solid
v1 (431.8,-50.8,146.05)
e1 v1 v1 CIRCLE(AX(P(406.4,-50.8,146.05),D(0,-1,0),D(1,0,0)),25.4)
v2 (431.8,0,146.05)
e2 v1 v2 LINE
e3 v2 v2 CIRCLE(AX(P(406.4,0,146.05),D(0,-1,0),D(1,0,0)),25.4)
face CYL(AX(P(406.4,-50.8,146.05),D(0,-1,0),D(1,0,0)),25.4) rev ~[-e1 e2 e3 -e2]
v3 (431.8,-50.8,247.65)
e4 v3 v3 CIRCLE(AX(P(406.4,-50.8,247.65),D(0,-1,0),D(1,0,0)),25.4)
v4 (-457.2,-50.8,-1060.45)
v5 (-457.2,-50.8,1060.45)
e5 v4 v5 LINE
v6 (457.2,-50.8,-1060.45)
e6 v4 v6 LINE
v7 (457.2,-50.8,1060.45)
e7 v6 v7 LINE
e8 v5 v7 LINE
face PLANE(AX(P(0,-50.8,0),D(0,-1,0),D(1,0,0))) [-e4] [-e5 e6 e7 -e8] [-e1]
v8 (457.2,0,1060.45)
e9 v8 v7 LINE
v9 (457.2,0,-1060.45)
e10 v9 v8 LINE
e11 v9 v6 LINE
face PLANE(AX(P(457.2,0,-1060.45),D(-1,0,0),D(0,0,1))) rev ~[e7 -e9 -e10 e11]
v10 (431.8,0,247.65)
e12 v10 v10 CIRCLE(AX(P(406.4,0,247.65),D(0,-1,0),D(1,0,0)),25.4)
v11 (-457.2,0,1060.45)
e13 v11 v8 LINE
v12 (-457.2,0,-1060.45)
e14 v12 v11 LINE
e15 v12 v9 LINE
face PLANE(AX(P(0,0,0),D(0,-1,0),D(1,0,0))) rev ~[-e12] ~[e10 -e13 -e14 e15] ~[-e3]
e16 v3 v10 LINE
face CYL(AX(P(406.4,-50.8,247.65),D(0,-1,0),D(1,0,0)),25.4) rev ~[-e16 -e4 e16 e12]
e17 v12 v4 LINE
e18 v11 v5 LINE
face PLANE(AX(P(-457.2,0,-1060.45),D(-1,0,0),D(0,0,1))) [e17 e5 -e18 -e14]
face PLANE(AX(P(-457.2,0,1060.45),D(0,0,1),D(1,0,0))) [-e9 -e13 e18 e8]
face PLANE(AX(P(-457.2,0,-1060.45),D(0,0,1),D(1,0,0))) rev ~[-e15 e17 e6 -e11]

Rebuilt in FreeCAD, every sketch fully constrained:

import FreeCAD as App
import Part
import Sketcher
from FreeCAD import Vector
Q = App.Units.Quantity


def add_polygon(sketch, points):
    """Adds a closed chain of lines whose ends are joined by coincident constraints."""
    first, n = sketch.GeometryCount, len(points)
    for a, b in zip(points, points[1:] + points[:1]):
        sketch.addGeometry(Part.LineSegment(App.Vector(*a, 0), App.Vector(*b, 0)), False)
    for i in range(n):
        sketch.addConstraint(Sketcher.Constraint("Coincident", first + i, 2, first + (i + 1) % n, 1))

doc = App.newDocument("Part")
body = doc.addObject("PartDesign::Body", "Body")

# Sketch on XZ plane
sketch1 = body.newObject("Sketcher::SketchObject", "Sketch")
sketch1.AttachmentSupport = (doc.getObject("XZ_Plane"), [""])
sketch1.MapMode = "FlatFace"
add_polygon(sketch1, [(-457, 1060), (-457, -1060), (457, -1060), (457, 1060)])  # lines 0-3
sketch1.addConstraint(Sketcher.Constraint("Vertical", 0))
sketch1.addConstraint(Sketcher.Constraint("Horizontal", 1))
sketch1.addConstraint(Sketcher.Constraint("Vertical", 2))
sketch1.addConstraint(Sketcher.Constraint("Horizontal", 3))
sketch1.addConstraint(Sketcher.Constraint("Symmetric", 0, 2, 2, 2, -1, 1))
sketch1.addConstraint(Sketcher.Constraint("DistanceX", 1, 1, 1, 2, Q("36 in")))
sketch1.addConstraint(Sketcher.Constraint("DistanceY", 0, 2, 0, 1, Q("83.5 in")))
pad1 = body.newObject("PartDesign::Pad", "Pad")
pad1.Profile = sketch1
pad1.Length = Q("2 in")

# Sketch on XZ plane
sketch2 = body.newObject("Sketcher::SketchObject", "Sketch001")
sketch2.AttachmentSupport = (doc.getObject("XZ_Plane"), [""])
sketch2.MapMode = "FlatFace"
sketch2.AttachmentOffset = App.Placement(Vector(0, 0, 2 * 25.4), App.Rotation())
sketch2.addGeometry(Part.Circle(Vector(406, 248, 0), Vector(0, 0, 1), 25), False)
sketch2.addGeometry(Part.Circle(Vector(406, 146, 0), Vector(0, 0, 1), 25), False)
sketch2.addConstraint(Sketcher.Constraint("Equal", 0, 1))
sketch2.addConstraint(Sketcher.Constraint("Vertical", 0, 3, 1, 3))
sketch2.addConstraint(Sketcher.Constraint("Diameter", 0, Q("2 in")))
sketch2.addConstraint(Sketcher.Constraint("DistanceX", -1, 1, 0, 3, Q("16 in")))
sketch2.addConstraint(Sketcher.Constraint("DistanceY", 1, 3, 0, 3, Q("4 in")))
sketch2.addConstraint(Sketcher.Constraint("DistanceY", -1, 1, 0, 3, Q("9.75 in")))
pocket1 = body.newObject("PartDesign::Pocket", "Pocket")
pocket1.Profile = sketch2
pocket1.Type = "ThroughAll"

doc.recompute()
